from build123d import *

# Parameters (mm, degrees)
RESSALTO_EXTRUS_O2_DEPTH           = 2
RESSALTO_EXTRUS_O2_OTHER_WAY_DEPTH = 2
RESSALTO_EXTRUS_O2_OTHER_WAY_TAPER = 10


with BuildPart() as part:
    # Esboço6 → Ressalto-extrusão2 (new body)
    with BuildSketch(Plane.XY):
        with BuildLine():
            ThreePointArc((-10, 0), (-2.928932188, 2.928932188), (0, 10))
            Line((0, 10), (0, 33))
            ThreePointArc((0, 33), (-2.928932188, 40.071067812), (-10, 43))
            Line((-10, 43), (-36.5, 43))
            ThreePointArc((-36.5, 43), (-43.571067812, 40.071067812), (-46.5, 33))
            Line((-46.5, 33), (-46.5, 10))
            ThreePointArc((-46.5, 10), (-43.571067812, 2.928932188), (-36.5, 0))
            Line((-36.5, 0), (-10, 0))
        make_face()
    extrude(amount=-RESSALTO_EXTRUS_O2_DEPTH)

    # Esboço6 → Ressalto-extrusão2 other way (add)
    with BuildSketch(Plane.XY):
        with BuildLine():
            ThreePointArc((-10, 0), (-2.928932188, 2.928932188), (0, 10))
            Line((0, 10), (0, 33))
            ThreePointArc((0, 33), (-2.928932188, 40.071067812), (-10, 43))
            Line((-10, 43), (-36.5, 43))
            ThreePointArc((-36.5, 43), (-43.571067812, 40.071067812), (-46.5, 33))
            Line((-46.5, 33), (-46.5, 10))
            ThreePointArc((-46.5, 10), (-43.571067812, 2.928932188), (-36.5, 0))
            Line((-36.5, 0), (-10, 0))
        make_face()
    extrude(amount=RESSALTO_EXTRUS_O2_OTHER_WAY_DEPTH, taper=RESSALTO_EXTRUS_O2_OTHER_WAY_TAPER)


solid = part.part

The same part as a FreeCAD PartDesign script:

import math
import FreeCAD as App
import Part
import Sketcher
from FreeCAD import Vector
Q = App.Units.Quantity

doc = App.newDocument("Part")
params = doc.addObject("Spreadsheet::Sheet", "Params")
for row, (alias, value) in enumerate([
    ("sketch1_radius", "10 mm"),
    ("sketch1_height", "23 mm"),
    ("sketch1_width", "26.5 mm"),
    ("pad1_length", "2 mm"),
    ("sketch2_radius", "10 mm"),
    ("sketch2_height", "23 mm"),
    ("sketch2_width", "26.5 mm"),
    ("pad2_length", "2 mm"),
    ("pad2_taper", "-10 deg"),
], start=1):
    params.set(f"A{row}", alias)
    params.set(f"B{row}", "=" + value)
    params.setAlias(f"B{row}", alias)

body = doc.addObject("PartDesign::Body", "Body")

# Sketch on XY plane
sketch1 = doc.addObject("Sketcher::SketchObject", "Sketch")
body.addObject(sketch1)
sketch1.AttachmentSupport = (doc.XY_Plane, [""])
sketch1.MapMode = "FlatFace"
sketch1.addGeometry([
    Part.ArcOfCircle(Part.Circle(Vector(-10, 10, 0), Vector(0, 0, 1), 10), math.radians(-90), math.radians(0)),  # 0
    Part.LineSegment(Vector(0, 10, 0), Vector(0, 33, 0)),  # 1
    Part.ArcOfCircle(Part.Circle(Vector(-10, 33, 0), Vector(0, 0, 1), 10), math.radians(0), math.radians(90)),  # 2
    Part.LineSegment(Vector(-10, 43, 0), Vector(-36.5, 43, 0)),  # 3
    Part.ArcOfCircle(Part.Circle(Vector(-36.5, 33, 0), Vector(0, 0, 1), 10), math.radians(90), math.radians(180)),  # 4
    Part.LineSegment(Vector(-46.5, 33, 0), Vector(-46.5, 10, 0)),  # 5
    Part.ArcOfCircle(Part.Circle(Vector(-36.5, 10, 0), Vector(0, 0, 1), 10), math.radians(180), math.radians(270)),  # 6
    Part.LineSegment(Vector(-36.5, 0, 0), Vector(-10, 0, 0)),  # 7
], False)
sketch1.addConstraint([
    Sketcher.Constraint("Tangent", 0, 2, 1, 1),
    Sketcher.Constraint("Tangent", 1, 2, 2, 1),
    Sketcher.Constraint("Tangent", 2, 2, 3, 1),
    Sketcher.Constraint("Tangent", 3, 2, 4, 1),
    Sketcher.Constraint("Tangent", 4, 2, 5, 1),
    Sketcher.Constraint("Tangent", 5, 2, 6, 1),
    Sketcher.Constraint("Tangent", 6, 2, 7, 1),
    Sketcher.Constraint("Tangent", 7, 2, 0, 1),
    Sketcher.Constraint("Vertical", 1),
    Sketcher.Constraint("Horizontal", 3),
    Sketcher.Constraint("Vertical", 5),
    Sketcher.Constraint("Horizontal", 7),
    Sketcher.Constraint("Equal", 0, 2),
    Sketcher.Constraint("Equal", 2, 4),
    Sketcher.Constraint("Equal", 4, 6),
    Sketcher.Constraint("PointOnObject", 0, 2, -2),
    Sketcher.Constraint("PointOnObject", 6, 2, -1),
    Sketcher.Constraint("Radius", 0, Q("10 mm")),
    Sketcher.Constraint("DistanceY", 1, 1, 1, 2, Q("23 mm")),
    Sketcher.Constraint("DistanceX", 3, 2, 3, 1, Q("26.5 mm")),
])
sketch1.setExpression("Constraints[17]", "Params.sketch1_radius")
sketch1.setExpression("Constraints[18]", "Params.sketch1_height")
sketch1.setExpression("Constraints[19]", "Params.sketch1_width")
pad1 = doc.addObject("PartDesign::Pad", "Pad")
body.addObject(pad1)
pad1.Profile = sketch1
pad1.setExpression("Length", "Params.pad1_length")
pad1.Reversed = True

# Sketch on XY plane
sketch2 = doc.addObject("Sketcher::SketchObject", "Sketch001")
body.addObject(sketch2)
sketch2.AttachmentSupport = (doc.XY_Plane, [""])
sketch2.MapMode = "FlatFace"
sketch2.addGeometry([
    Part.ArcOfCircle(Part.Circle(Vector(-10, 10, 0), Vector(0, 0, 1), 10), math.radians(-90), math.radians(0)),  # 0
    Part.LineSegment(Vector(0, 10, 0), Vector(0, 33, 0)),  # 1
    Part.ArcOfCircle(Part.Circle(Vector(-10, 33, 0), Vector(0, 0, 1), 10), math.radians(0), math.radians(90)),  # 2
    Part.LineSegment(Vector(-10, 43, 0), Vector(-36.5, 43, 0)),  # 3
    Part.ArcOfCircle(Part.Circle(Vector(-36.5, 33, 0), Vector(0, 0, 1), 10), math.radians(90), math.radians(180)),  # 4
    Part.LineSegment(Vector(-46.5, 33, 0), Vector(-46.5, 10, 0)),  # 5
    Part.ArcOfCircle(Part.Circle(Vector(-36.5, 10, 0), Vector(0, 0, 1), 10), math.radians(180), math.radians(270)),  # 6
    Part.LineSegment(Vector(-36.5, 0, 0), Vector(-10, 0, 0)),  # 7
], False)
sketch2.addConstraint([
    Sketcher.Constraint("Tangent", 0, 2, 1, 1),
    Sketcher.Constraint("Tangent", 1, 2, 2, 1),
    Sketcher.Constraint("Tangent", 2, 2, 3, 1),
    Sketcher.Constraint("Tangent", 3, 2, 4, 1),
    Sketcher.Constraint("Tangent", 4, 2, 5, 1),
    Sketcher.Constraint("Tangent", 5, 2, 6, 1),
    Sketcher.Constraint("Tangent", 6, 2, 7, 1),
    Sketcher.Constraint("Tangent", 7, 2, 0, 1),
    Sketcher.Constraint("Vertical", 1),
    Sketcher.Constraint("Horizontal", 3),
    Sketcher.Constraint("Vertical", 5),
    Sketcher.Constraint("Horizontal", 7),
    Sketcher.Constraint("Equal", 0, 2),
    Sketcher.Constraint("Equal", 2, 4),
    Sketcher.Constraint("Equal", 4, 6),
    Sketcher.Constraint("PointOnObject", 0, 2, -2),
    Sketcher.Constraint("PointOnObject", 6, 2, -1),
    Sketcher.Constraint("Radius", 0, Q("10 mm")),
    Sketcher.Constraint("DistanceY", 1, 1, 1, 2, Q("23 mm")),
    Sketcher.Constraint("DistanceX", 3, 2, 3, 1, Q("26.5 mm")),
])
sketch2.setExpression("Constraints[17]", "Params.sketch2_radius")
sketch2.setExpression("Constraints[18]", "Params.sketch2_height")
sketch2.setExpression("Constraints[19]", "Params.sketch2_width")
pad2 = doc.addObject("PartDesign::Pad", "Pad001")
body.addObject(pad2)
pad2.Profile = sketch2
pad2.setExpression("Length", "Params.pad2_length")
pad2.setExpression("TaperAngle", "Params.pad2_taper")

doc.recompute()
